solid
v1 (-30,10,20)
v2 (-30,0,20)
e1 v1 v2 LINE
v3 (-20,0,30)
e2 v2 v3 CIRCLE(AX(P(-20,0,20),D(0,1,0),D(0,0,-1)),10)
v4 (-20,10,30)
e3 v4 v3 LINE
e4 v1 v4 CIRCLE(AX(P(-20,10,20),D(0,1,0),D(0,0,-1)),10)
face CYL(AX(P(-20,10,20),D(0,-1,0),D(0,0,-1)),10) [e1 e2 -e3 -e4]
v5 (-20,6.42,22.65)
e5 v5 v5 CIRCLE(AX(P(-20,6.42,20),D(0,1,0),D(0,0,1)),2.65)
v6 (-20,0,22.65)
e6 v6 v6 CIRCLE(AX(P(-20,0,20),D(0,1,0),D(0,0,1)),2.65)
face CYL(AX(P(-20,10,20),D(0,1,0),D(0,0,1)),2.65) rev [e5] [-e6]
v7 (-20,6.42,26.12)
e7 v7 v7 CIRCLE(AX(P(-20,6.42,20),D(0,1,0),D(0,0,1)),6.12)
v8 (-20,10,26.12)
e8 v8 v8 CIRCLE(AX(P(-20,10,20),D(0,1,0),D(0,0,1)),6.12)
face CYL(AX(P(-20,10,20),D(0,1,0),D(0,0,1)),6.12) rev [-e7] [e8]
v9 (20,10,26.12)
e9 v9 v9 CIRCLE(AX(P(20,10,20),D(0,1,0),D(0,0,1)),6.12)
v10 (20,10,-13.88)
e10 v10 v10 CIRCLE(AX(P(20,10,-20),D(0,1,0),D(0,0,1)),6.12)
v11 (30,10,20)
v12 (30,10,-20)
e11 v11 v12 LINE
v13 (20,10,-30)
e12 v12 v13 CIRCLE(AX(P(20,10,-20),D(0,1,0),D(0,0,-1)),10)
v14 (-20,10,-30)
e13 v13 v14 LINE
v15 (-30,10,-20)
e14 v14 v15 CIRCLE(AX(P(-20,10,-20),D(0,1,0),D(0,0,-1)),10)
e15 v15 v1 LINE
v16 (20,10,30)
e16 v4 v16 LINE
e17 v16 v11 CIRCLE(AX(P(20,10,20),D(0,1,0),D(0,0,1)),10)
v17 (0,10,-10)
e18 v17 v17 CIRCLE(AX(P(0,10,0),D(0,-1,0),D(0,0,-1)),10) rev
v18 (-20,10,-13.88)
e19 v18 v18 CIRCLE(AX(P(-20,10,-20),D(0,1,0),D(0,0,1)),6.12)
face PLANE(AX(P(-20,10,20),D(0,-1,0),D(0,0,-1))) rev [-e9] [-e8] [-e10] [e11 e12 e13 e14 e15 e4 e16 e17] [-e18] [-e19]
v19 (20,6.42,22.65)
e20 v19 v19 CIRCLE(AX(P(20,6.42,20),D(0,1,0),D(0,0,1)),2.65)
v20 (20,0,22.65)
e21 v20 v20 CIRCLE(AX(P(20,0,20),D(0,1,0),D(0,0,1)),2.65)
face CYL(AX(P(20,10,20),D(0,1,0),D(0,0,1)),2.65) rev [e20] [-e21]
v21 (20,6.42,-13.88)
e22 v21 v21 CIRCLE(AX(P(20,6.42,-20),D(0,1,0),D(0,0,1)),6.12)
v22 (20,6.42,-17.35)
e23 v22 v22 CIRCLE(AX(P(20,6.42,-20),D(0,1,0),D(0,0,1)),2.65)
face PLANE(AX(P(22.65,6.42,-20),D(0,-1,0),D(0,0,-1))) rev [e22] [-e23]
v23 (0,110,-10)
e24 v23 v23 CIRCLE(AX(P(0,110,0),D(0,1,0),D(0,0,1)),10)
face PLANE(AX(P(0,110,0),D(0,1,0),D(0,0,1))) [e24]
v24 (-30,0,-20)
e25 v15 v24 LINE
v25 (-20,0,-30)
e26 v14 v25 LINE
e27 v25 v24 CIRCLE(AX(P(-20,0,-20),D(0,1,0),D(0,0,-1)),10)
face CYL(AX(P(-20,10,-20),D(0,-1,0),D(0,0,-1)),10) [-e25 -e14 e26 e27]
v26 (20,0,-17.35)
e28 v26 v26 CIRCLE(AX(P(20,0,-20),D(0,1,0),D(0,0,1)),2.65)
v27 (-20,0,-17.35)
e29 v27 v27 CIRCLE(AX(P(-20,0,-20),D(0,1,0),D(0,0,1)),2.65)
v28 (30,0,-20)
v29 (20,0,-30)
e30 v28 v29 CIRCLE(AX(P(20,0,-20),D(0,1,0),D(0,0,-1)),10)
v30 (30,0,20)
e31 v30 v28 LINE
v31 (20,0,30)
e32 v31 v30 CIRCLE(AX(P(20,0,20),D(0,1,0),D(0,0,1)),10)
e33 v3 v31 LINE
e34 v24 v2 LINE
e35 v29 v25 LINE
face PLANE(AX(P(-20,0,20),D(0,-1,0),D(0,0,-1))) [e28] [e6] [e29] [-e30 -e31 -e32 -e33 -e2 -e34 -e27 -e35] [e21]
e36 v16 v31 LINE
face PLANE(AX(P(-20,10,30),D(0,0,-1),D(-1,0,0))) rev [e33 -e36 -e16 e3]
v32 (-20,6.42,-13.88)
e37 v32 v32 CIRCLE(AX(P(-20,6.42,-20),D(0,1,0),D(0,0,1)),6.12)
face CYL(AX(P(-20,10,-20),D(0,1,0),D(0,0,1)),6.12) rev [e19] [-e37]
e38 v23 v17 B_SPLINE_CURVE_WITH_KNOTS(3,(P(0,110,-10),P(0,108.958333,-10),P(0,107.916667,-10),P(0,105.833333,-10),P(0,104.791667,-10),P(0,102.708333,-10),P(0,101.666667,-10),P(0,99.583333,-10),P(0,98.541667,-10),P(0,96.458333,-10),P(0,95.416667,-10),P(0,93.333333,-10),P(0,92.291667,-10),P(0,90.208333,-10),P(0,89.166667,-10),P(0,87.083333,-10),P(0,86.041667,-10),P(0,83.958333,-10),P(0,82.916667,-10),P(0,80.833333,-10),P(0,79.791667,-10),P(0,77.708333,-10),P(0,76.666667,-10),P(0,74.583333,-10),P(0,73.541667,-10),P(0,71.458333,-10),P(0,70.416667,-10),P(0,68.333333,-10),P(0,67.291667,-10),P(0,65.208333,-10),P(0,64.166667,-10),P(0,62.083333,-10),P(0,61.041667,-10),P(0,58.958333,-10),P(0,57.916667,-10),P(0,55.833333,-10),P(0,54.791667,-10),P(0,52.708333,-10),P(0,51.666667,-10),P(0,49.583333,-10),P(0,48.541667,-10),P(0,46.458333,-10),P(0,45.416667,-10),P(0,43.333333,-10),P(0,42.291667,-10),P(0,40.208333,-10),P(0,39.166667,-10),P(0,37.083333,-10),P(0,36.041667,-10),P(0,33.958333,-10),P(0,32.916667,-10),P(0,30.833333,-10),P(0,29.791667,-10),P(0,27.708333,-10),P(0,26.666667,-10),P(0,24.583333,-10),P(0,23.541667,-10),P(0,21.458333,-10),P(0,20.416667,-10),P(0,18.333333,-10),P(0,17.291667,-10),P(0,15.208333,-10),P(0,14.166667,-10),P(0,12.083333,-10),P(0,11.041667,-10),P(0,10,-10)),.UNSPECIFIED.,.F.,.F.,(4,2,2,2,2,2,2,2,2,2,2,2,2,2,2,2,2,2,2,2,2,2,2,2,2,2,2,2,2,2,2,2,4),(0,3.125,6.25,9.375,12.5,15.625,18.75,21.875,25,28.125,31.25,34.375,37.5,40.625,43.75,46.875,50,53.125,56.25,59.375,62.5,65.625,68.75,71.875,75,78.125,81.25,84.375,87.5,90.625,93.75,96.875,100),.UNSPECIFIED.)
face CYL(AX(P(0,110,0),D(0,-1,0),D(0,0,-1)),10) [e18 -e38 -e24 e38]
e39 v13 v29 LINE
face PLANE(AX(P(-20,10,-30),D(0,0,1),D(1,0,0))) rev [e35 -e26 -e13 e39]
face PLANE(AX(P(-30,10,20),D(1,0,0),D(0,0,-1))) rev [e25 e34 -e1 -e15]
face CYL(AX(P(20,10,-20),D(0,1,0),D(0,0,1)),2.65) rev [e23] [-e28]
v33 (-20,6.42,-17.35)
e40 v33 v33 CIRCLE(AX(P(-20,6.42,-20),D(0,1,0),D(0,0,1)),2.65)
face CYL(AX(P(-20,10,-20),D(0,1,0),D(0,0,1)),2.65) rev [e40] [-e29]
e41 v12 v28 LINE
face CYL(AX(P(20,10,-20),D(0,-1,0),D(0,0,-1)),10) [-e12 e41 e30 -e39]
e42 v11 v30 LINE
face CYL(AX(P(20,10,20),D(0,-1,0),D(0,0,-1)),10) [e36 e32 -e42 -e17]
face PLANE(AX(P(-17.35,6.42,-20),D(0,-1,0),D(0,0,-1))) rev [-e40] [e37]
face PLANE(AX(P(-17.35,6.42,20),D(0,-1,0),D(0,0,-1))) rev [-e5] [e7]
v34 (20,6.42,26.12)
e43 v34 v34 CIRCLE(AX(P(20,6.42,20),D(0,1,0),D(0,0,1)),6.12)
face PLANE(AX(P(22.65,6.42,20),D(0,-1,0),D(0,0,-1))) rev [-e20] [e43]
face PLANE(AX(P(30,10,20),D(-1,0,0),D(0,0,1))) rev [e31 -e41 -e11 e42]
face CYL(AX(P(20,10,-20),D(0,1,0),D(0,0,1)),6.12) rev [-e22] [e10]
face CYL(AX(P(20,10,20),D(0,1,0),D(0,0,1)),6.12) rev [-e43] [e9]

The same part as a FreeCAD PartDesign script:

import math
import FreeCAD as App
import Part
import Sketcher
Q = App.Units.Quantity

doc = App.newDocument("Part")
params = doc.addObject("Spreadsheet::Sheet", "Params")
for row, (alias, value) in enumerate([
    ("sketch1_radius", "10 mm"),
    ("sketch1_width", "40 mm"),
    ("pad1_length", "10 mm"),
    ("sketch2_diameter", "5.3 mm"),
    ("hole_diameter", "5.3 mm"),
    ("hole_cbore_diameter", "12.24 mm"),
    ("hole_cbore_depth", "3.58 mm"),
    ("sketch3_diameter", "20 mm"),
    ("pad2_length", "100 mm"),
], start=1):
    params.set(f"A{row}", alias)
    params.set(f"B{row}", "=" + value)
    params.setAlias(f"B{row}", alias)

body = doc.addObject("PartDesign::Body", "Body")

# Sketch on XZ plane
sketch1 = doc.addObject("Sketcher::SketchObject", "Sketch")
body.addObject(sketch1)
sketch1.AttachmentSupport = (doc.XZ_Plane, [""])
sketch1.MapMode = "FlatFace"
sketch1.addGeometry([
    Part.LineSegment(App.Vector(-20, 30, 0), App.Vector(20, 30, 0)),  # 0
    Part.ArcOfCircle(Part.Circle(App.Vector(20, 20, 0), App.Vector(0, 0, 1), 10), math.radians(0), math.radians(90)),  # 1
    Part.LineSegment(App.Vector(30, 20, 0), App.Vector(30, -20, 0)),  # 2
    Part.ArcOfCircle(Part.Circle(App.Vector(20, -20, 0), App.Vector(0, 0, 1), 10), math.radians(-90), math.radians(0)),  # 3
    Part.LineSegment(App.Vector(20, -30, 0), App.Vector(-20, -30, 0)),  # 4
    Part.ArcOfCircle(Part.Circle(App.Vector(-20, -20, 0), App.Vector(0, 0, 1), 10), math.radians(180), math.radians(270)),  # 5
    Part.LineSegment(App.Vector(-30, -20, 0), App.Vector(-30, 20, 0)),  # 6
    Part.ArcOfCircle(Part.Circle(App.Vector(-20, 20, 0), App.Vector(0, 0, 1), 10), math.radians(90), math.radians(180)),  # 7
], False)
sketch1.addConstraint([
    Sketcher.Constraint("Tangent", 0, 2, 1, 2),
    Sketcher.Constraint("Tangent", 1, 1, 2, 1),
    Sketcher.Constraint("Tangent", 2, 2, 3, 2),
    Sketcher.Constraint("Tangent", 3, 1, 4, 1),
    Sketcher.Constraint("Tangent", 4, 2, 5, 2),
    Sketcher.Constraint("Tangent", 5, 1, 6, 1),
    Sketcher.Constraint("Tangent", 6, 2, 7, 2),
    Sketcher.Constraint("Tangent", 7, 1, 0, 1),
    Sketcher.Constraint("Horizontal", 0),
    Sketcher.Constraint("Vertical", 2),
    Sketcher.Constraint("Horizontal", 4),
    Sketcher.Constraint("Vertical", 6),
    Sketcher.Constraint("Equal", 1, 3),
    Sketcher.Constraint("Equal", 3, 5),
    Sketcher.Constraint("Equal", 5, 7),
    Sketcher.Constraint("Symmetric", 1, 3, 5, 3, -1, 1),
    Sketcher.Constraint("Equal", 4, 2),
    Sketcher.Constraint("Radius", 1, Q("10 mm")),
    Sketcher.Constraint("DistanceX", 0, 1, 0, 2, Q("40 mm")),
])
sketch1.setExpression("Constraints[17]", "Params.sketch1_radius")
sketch1.setExpression("Constraints[18]", "Params.sketch1_width")
pad1 = doc.addObject("PartDesign::Pad", "Pad")
body.addObject(pad1)
pad1.Profile = sketch1
pad1.setExpression("Length", "Params.pad1_length")
pad1.Reversed = True

# Sketch on XZ plane
sketch2 = doc.addObject("Sketcher::SketchObject", "Sketch001")
body.addObject(sketch2)
sketch2.AttachmentSupport = (doc.XZ_Plane, [""])
sketch2.MapMode = "FlatFace"
sketch2.AttachmentOffset = App.Placement(App.Vector(0, 0, -10), App.Rotation())
sketch2.addGeometry([
    Part.Circle(App.Vector(-20, 20, 0), App.Vector(0, 0, 1), 2.6),
    Part.Circle(App.Vector(-20, -20, 0), App.Vector(0, 0, 1), 2.6),
    Part.Circle(App.Vector(20, -20, 0), App.Vector(0, 0, 1), 2.6),
    Part.Circle(App.Vector(20, 20, 0), App.Vector(0, 0, 1), 2.6),
], False)
sketch2.addConstraint([
    Sketcher.Constraint("Equal", 0, 1),
    Sketcher.Constraint("Equal", 1, 2),
    Sketcher.Constraint("Equal", 2, 3),
    Sketcher.Constraint("Symmetric", 0, 3, 2, 3, -1, 1),
    Sketcher.Constraint("Symmetric", 1, 3, 3, 3, -1, 1),
    Sketcher.Constraint("Symmetric", 1, 3, 2, 3, -2),
    Sketcher.Constraint("Diameter", 0, Q("5.3 mm")),
    Sketcher.Constraint("DistanceX", 0, 3, -1, 1, Q("20 mm")),
    Sketcher.Constraint("DistanceY", -1, 1, 0, 3, Q("20 mm")),
])
sketch2.setExpression("Constraints[6]", "Params.sketch2_diameter")
doc.recompute()
hole = doc.addObject("PartDesign::Hole", "Hole")
body.addObject(hole)
hole.Profile = sketch2
hole.ThreadType = "None"
hole.setExpression("Diameter", "Params.hole_diameter")
hole.DepthType = "ThroughAll"
hole.HoleCutType = "Counterbore"
hole.setExpression("HoleCutDiameter", "Params.hole_cbore_diameter")
hole.setExpression("HoleCutDepth", "Params.hole_cbore_depth")
hole.Reversed = True

# Sketch on XZ plane
sketch3 = doc.addObject("Sketcher::SketchObject", "Sketch002")
body.addObject(sketch3)
sketch3.AttachmentSupport = (doc.XZ_Plane, [""])
sketch3.MapMode = "FlatFace"
sketch3.AttachmentOffset = App.Placement(App.Vector(0, 0, -10), App.Rotation())
sketch3.addGeometry(Part.Circle(App.Vector(0, 0, 0), App.Vector(0, 0, 1), 10), False)
sketch3.addConstraint([
    Sketcher.Constraint("Coincident", 0, 3, -1, 1),
    Sketcher.Constraint("Diameter", 0, Q("20 mm")),
])
sketch3.setExpression("Constraints[1]", "Params.sketch3_diameter")
pad2 = doc.addObject("PartDesign::Pad", "Pad001")
body.addObject(pad2)
pad2.Profile = sketch3
pad2.setExpression("Length", "Params.pad2_length")
pad2.Reversed = True

doc.recompute()
